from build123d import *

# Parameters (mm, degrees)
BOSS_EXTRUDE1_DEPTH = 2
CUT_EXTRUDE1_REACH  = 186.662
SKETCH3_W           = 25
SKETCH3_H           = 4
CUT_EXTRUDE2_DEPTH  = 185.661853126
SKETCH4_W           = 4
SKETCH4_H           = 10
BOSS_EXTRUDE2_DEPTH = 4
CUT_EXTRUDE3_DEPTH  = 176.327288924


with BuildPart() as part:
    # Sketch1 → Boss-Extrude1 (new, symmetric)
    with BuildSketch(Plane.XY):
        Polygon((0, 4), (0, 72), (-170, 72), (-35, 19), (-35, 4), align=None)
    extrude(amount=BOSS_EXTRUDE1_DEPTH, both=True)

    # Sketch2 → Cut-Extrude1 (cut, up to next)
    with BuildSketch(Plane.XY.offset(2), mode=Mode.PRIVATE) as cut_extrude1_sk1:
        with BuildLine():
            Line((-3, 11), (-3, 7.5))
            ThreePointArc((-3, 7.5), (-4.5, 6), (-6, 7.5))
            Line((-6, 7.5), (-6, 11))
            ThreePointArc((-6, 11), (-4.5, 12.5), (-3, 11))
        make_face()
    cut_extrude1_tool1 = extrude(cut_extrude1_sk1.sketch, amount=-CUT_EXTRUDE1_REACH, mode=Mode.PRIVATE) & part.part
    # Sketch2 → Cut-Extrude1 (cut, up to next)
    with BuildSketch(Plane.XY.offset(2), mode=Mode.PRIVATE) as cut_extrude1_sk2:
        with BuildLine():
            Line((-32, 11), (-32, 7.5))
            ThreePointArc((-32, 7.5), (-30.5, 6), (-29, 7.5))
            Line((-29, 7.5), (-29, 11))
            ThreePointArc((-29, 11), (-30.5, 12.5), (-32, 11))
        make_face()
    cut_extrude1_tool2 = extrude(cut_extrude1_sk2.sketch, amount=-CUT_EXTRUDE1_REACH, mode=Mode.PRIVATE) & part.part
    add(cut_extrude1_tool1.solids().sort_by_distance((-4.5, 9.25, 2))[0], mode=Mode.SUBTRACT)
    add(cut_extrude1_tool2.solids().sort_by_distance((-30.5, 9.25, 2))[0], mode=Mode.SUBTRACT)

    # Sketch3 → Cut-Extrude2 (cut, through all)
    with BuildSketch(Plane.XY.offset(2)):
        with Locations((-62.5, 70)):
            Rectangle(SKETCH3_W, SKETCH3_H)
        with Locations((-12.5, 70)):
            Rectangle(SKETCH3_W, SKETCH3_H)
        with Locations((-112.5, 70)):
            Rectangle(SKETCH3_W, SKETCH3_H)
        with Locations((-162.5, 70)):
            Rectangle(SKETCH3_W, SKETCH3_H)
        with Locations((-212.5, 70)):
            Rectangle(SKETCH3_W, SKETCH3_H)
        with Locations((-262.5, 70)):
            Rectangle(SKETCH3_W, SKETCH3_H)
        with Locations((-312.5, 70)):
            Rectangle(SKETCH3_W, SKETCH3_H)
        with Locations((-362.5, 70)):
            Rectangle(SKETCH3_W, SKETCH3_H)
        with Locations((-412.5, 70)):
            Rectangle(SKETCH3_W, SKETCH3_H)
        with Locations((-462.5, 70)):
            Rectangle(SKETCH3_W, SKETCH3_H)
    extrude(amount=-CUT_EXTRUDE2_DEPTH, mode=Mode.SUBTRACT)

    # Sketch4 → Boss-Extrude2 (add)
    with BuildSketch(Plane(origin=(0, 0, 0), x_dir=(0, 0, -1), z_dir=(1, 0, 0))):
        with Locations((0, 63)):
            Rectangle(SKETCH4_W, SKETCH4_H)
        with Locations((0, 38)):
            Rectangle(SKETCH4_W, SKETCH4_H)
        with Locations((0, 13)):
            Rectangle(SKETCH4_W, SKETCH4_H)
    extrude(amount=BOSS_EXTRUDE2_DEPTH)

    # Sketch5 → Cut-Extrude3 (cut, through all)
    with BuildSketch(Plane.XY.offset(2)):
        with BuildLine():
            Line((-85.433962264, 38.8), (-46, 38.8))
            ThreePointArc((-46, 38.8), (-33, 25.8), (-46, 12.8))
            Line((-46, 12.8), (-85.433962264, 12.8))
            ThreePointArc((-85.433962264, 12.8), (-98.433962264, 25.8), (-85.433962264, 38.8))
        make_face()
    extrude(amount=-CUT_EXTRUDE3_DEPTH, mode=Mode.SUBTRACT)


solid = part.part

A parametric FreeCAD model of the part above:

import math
import FreeCAD as App
import Part
import Sketcher

doc = App.newDocument("Part")
params = doc.addObject("Spreadsheet::Sheet", "Params")
for row, (alias, value) in enumerate([
    ("sketch1_width", "170 mm"),
    ("sketch1_width2", "35 mm"),
    ("sketch1_height", "68 mm"),
    ("sketch1_height2", "15 mm"),
    ("pad1_length", "4 mm"),
    ("sketch2_radius", "1.5 mm"),
    ("sketch2_height", "3.5 mm"),
    ("sketch3_radius", "1.5 mm"),
    ("sketch3_height", "3.5 mm"),
    ("sketch4_width", "25 mm"),
    ("sketch4_height", "4 mm"),
    ("sketch5_width", "10 mm"),
    ("sketch5_height", "4 mm"),
    ("pad2_length", "4 mm"),
    ("sketch6_radius", "13 mm"),
], start=1):
    params.set(f"A{row}", alias)
    params.set(f"B{row}", "=" + value)
    params.setAlias(f"B{row}", alias)

body = doc.addObject("PartDesign::Body", "Body")

# Sketch on XY plane
sketch1 = doc.addObject("Sketcher::SketchObject", "Sketch")
body.addObject(sketch1)
sketch1.AttachmentSupport = (doc.XY_Plane, [""])
sketch1.MapMode = "FlatFace"
sketch1.addGeometry(Part.LineSegment(App.Vector(0, 4, 0), App.Vector(0, 72, 0)), False)
sketch1.addGeometry(Part.LineSegment(App.Vector(0, 72, 0), App.Vector(-170, 72, 0)), False)
sketch1.addGeometry(Part.LineSegment(App.Vector(-170, 72, 0), App.Vector(-35, 19, 0)), False)
sketch1.addGeometry(Part.LineSegment(App.Vector(-35, 19, 0), App.Vector(-35, 4, 0)), False)
sketch1.addGeometry(Part.LineSegment(App.Vector(-35, 4, 0), App.Vector(0, 4, 0)), False)
sketch1.addConstraint(Sketcher.Constraint("Coincident", 0, 2, 1, 1))
sketch1.addConstraint(Sketcher.Constraint("Coincident", 1, 2, 2, 1))
sketch1.addConstraint(Sketcher.Constraint("Coincident", 2, 2, 3, 1))
sketch1.addConstraint(Sketcher.Constraint("Coincident", 3, 2, 4, 1))
sketch1.addConstraint(Sketcher.Constraint("Coincident", 4, 2, 0, 1))
sketch1.addConstraint(Sketcher.Constraint("Vertical", 0))
sketch1.addConstraint(Sketcher.Constraint("Horizontal", 1))
sketch1.addConstraint(Sketcher.Constraint("Vertical", 3))
sketch1.addConstraint(Sketcher.Constraint("Horizontal", 4))
sketch1.addConstraint(Sketcher.Constraint("PointOnObject", 0, 2, -2))
sketch1.addConstraint(Sketcher.Constraint("DistanceX", 1, 2, 1, 1, 170.0))
sketch1.addConstraint(Sketcher.Constraint("DistanceX", 4, 1, 4, 2, 35.0))
sketch1.addConstraint(Sketcher.Constraint("DistanceY", 0, 1, 0, 2, 68.0))
sketch1.addConstraint(Sketcher.Constraint("DistanceY", 3, 2, 3, 1, 15.0))
sketch1.addConstraint(Sketcher.Constraint("DistanceY", -1, 1, 0, 2, 72.0))
sketch1.setExpression("Constraints[10]", "Params.sketch1_width")
sketch1.setExpression("Constraints[11]", "Params.sketch1_width2")
sketch1.setExpression("Constraints[12]", "Params.sketch1_height")
sketch1.setExpression("Constraints[13]", "Params.sketch1_height2")
pad1 = doc.addObject("PartDesign::Pad", "Pad")
body.addObject(pad1)
pad1.Profile = sketch1
pad1.setExpression("Length", "Params.pad1_length")
pad1.Midplane = True

# Sketch on XY plane
sketch2 = doc.addObject("Sketcher::SketchObject", "Sketch001")
body.addObject(sketch2)
sketch2.AttachmentSupport = (doc.XY_Plane, [""])
sketch2.MapMode = "FlatFace"
sketch2.AttachmentOffset = App.Placement(App.Vector(0, 0, 2), App.Rotation())
sketch2.addGeometry(Part.LineSegment(App.Vector(-3, 7.5, 0), App.Vector(-3, 11, 0)), False)
sketch2.addGeometry(Part.ArcOfCircle(Part.Circle(App.Vector(-4.5, 11, 0), App.Vector(0, 0, 1), 1.5), math.radians(0), math.radians(180)), False)
sketch2.addGeometry(Part.LineSegment(App.Vector(-6, 11, 0), App.Vector(-6, 7.5, 0)), False)
sketch2.addGeometry(Part.ArcOfCircle(Part.Circle(App.Vector(-4.5, 7.5, 0), App.Vector(0, 0, 1), 1.5), math.radians(180), math.radians(360)), False)
sketch2.addConstraint(Sketcher.Constraint("Tangent", 0, 2, 1, 1))
sketch2.addConstraint(Sketcher.Constraint("Tangent", 1, 2, 2, 1))
sketch2.addConstraint(Sketcher.Constraint("Tangent", 2, 2, 3, 1))
sketch2.addConstraint(Sketcher.Constraint("Tangent", 3, 2, 0, 1))
sketch2.addConstraint(Sketcher.Constraint("Vertical", 0))
sketch2.addConstraint(Sketcher.Constraint("Vertical", 2))
sketch2.addConstraint(Sketcher.Constraint("Radius", 1, 1.5))
sketch2.addConstraint(Sketcher.Constraint("DistanceY", 0, 1, 0, 2, 3.5))
sketch2.addConstraint(Sketcher.Constraint("DistanceY", -1, 1, 1, 3, 11.0))
sketch2.addConstraint(Sketcher.Constraint("DistanceX", 0, 2, -1, 1, 3.0))
sketch2.setExpression("Constraints[6]", "Params.sketch2_radius")
sketch2.setExpression("Constraints[7]", "Params.sketch2_height")
pocket1 = doc.addObject("PartDesign::Pocket", "Pocket")
body.addObject(pocket1)
pocket1.Profile = sketch2
pocket1.Type = "UpToFirst"

# Sketch on XY plane
sketch3 = doc.addObject("Sketcher::SketchObject", "Sketch002")
body.addObject(sketch3)
sketch3.AttachmentSupport = (doc.XY_Plane, [""])
sketch3.MapMode = "FlatFace"
sketch3.AttachmentOffset = App.Placement(App.Vector(0, 0, 2), App.Rotation())
sketch3.addGeometry(Part.LineSegment(App.Vector(-32, 11, 0), App.Vector(-32, 7.5, 0)), False)
sketch3.addGeometry(Part.ArcOfCircle(Part.Circle(App.Vector(-30.5, 7.5, 0), App.Vector(0, 0, 1), 1.5), math.radians(180), math.radians(360)), False)
sketch3.addGeometry(Part.LineSegment(App.Vector(-29, 7.5, 0), App.Vector(-29, 11, 0)), False)
sketch3.addGeometry(Part.ArcOfCircle(Part.Circle(App.Vector(-30.5, 11, 0), App.Vector(0, 0, 1), 1.5), math.radians(0), math.radians(180)), False)
sketch3.addConstraint(Sketcher.Constraint("Tangent", 0, 2, 1, 1))
sketch3.addConstraint(Sketcher.Constraint("Tangent", 1, 2, 2, 1))
sketch3.addConstraint(Sketcher.Constraint("Tangent", 2, 2, 3, 1))
sketch3.addConstraint(Sketcher.Constraint("Tangent", 3, 2, 0, 1))
sketch3.addConstraint(Sketcher.Constraint("Vertical", 0))
sketch3.addConstraint(Sketcher.Constraint("Vertical", 2))
sketch3.addConstraint(Sketcher.Constraint("Radius", 1, 1.5))
sketch3.addConstraint(Sketcher.Constraint("DistanceY", 0, 2, 0, 1, 3.5))
sketch3.addConstraint(Sketcher.Constraint("DistanceY", -1, 1, 3, 3, 11.0))
sketch3.addConstraint(Sketcher.Constraint("DistanceX", 0, 2, -1, 1, 32.0))
sketch3.setExpression("Constraints[6]", "Params.sketch3_radius")
sketch3.setExpression("Constraints[7]", "Params.sketch3_height")
pocket2 = doc.addObject("PartDesign::Pocket", "Pocket001")
body.addObject(pocket2)
pocket2.Profile = sketch3
pocket2.Type = "UpToFirst"

# Sketch on XY plane
sketch4 = doc.addObject("Sketcher::SketchObject", "Sketch003")
body.addObject(sketch4)
sketch4.AttachmentSupport = (doc.XY_Plane, [""])
sketch4.MapMode = "FlatFace"
sketch4.AttachmentOffset = App.Placement(App.Vector(0, 0, 2), App.Rotation())
sketch4.addGeometry(Part.LineSegment(App.Vector(-75, 72, 0), App.Vector(-75, 68, 0)), False)
sketch4.addGeometry(Part.LineSegment(App.Vector(-75, 68, 0), App.Vector(-50, 68, 0)), False)
sketch4.addGeometry(Part.LineSegment(App.Vector(-50, 68, 0), App.Vector(-50, 72, 0)), False)
sketch4.addGeometry(Part.LineSegment(App.Vector(-50, 72, 0), App.Vector(-75, 72, 0)), False)
sketch4.addGeometry(Part.LineSegment(App.Vector(-25, 72, 0), App.Vector(-25, 68, 0)), False)
sketch4.addGeometry(Part.LineSegment(App.Vector(-25, 68, 0), App.Vector(0, 68, 0)), False)
sketch4.addGeometry(Part.LineSegment(App.Vector(0, 68, 0), App.Vector(0, 72, 0)), False)
sketch4.addGeometry(Part.LineSegment(App.Vector(0, 72, 0), App.Vector(-25, 72, 0)), False)
sketch4.addGeometry(Part.LineSegment(App.Vector(-125, 72, 0), App.Vector(-125, 68, 0)), False)
sketch4.addGeometry(Part.LineSegment(App.Vector(-125, 68, 0), App.Vector(-100, 68, 0)), False)
sketch4.addGeometry(Part.LineSegment(App.Vector(-100, 68, 0), App.Vector(-100, 72, 0)), False)
sketch4.addGeometry(Part.LineSegment(App.Vector(-100, 72, 0), App.Vector(-125, 72, 0)), False)
sketch4.addGeometry(Part.LineSegment(App.Vector(-175, 72, 0), App.Vector(-175, 68, 0)), False)
sketch4.addGeometry(Part.LineSegment(App.Vector(-175, 68, 0), App.Vector(-150, 68, 0)), False)
sketch4.addGeometry(Part.LineSegment(App.Vector(-150, 68, 0), App.Vector(-150, 72, 0)), False)
sketch4.addGeometry(Part.LineSegment(App.Vector(-150, 72, 0), App.Vector(-175, 72, 0)), False)
sketch4.addGeometry(Part.LineSegment(App.Vector(-225, 72, 0), App.Vector(-225, 68, 0)), False)
sketch4.addGeometry(Part.LineSegment(App.Vector(-225, 68, 0), App.Vector(-200, 68, 0)), False)
sketch4.addGeometry(Part.LineSegment(App.Vector(-200, 68, 0), App.Vector(-200, 72, 0)), False)
sketch4.addGeometry(Part.LineSegment(App.Vector(-200, 72, 0), App.Vector(-225, 72, 0)), False)
sketch4.addGeometry(Part.LineSegment(App.Vector(-275, 72, 0), App.Vector(-275, 68, 0)), False)
sketch4.addGeometry(Part.LineSegment(App.Vector(-275, 68, 0), App.Vector(-250, 68, 0)), False)
sketch4.addGeometry(Part.LineSegment(App.Vector(-250, 68, 0), App.Vector(-250, 72, 0)), False)
sketch4.addGeometry(Part.LineSegment(App.Vector(-250, 72, 0), App.Vector(-275, 72, 0)), False)
sketch4.addGeometry(Part.LineSegment(App.Vector(-325, 72, 0), App.Vector(-325, 68, 0)), False)
sketch4.addGeometry(Part.LineSegment(App.Vector(-325, 68, 0), App.Vector(-300, 68, 0)), False)
sketch4.addGeometry(Part.LineSegment(App.Vector(-300, 68, 0), App.Vector(-300, 72, 0)), False)
sketch4.addGeometry(Part.LineSegment(App.Vector(-300, 72, 0), App.Vector(-325, 72, 0)), False)
sketch4.addGeometry(Part.LineSegment(App.Vector(-375, 72, 0), App.Vector(-375, 68, 0)), False)
sketch4.addGeometry(Part.LineSegment(App.Vector(-375, 68, 0), App.Vector(-350, 68, 0)), False)
sketch4.addGeometry(Part.LineSegment(App.Vector(-350, 68, 0), App.Vector(-350, 72, 0)), False)
sketch4.addGeometry(Part.LineSegment(App.Vector(-350, 72, 0), App.Vector(-375, 72, 0)), False)
sketch4.addGeometry(Part.LineSegment(App.Vector(-425, 72, 0), App.Vector(-425, 68, 0)), False)
sketch4.addGeometry(Part.LineSegment(App.Vector(-425, 68, 0), App.Vector(-400, 68, 0)), False)
sketch4.addGeometry(Part.LineSegment(App.Vector(-400, 68, 0), App.Vector(-400, 72, 0)), False)
sketch4.addGeometry(Part.LineSegment(App.Vector(-400, 72, 0), App.Vector(-425, 72, 0)), False)
sketch4.addGeometry(Part.LineSegment(App.Vector(-475, 72, 0), App.Vector(-475, 68, 0)), False)
sketch4.addGeometry(Part.LineSegment(App.Vector(-475, 68, 0), App.Vector(-450, 68, 0)), False)
sketch4.addGeometry(Part.LineSegment(App.Vector(-450, 68, 0), App.Vector(-450, 72, 0)), False)
sketch4.addGeometry(Part.LineSegment(App.Vector(-450, 72, 0), App.Vector(-475, 72, 0)), False)
sketch4.addConstraint(Sketcher.Constraint("Coincident", 0, 2, 1, 1))
sketch4.addConstraint(Sketcher.Constraint("Coincident", 1, 2, 2, 1))
sketch4.addConstraint(Sketcher.Constraint("Coincident", 2, 2, 3, 1))
sketch4.addConstraint(Sketcher.Constraint("Coincident", 3, 2, 0, 1))
sketch4.addConstraint(Sketcher.Constraint("Coincident", 4, 2, 5, 1))
sketch4.addConstraint(Sketcher.Constraint("Coincident", 5, 2, 6, 1))
sketch4.addConstraint(Sketcher.Constraint("Coincident", 6, 2, 7, 1))
sketch4.addConstraint(Sketcher.Constraint("Coincident", 7, 2, 4, 1))
sketch4.addConstraint(Sketcher.Constraint("Coincident", 8, 2, 9, 1))
sketch4.addConstraint(Sketcher.Constraint("Coincident", 9, 2, 10, 1))
sketch4.addConstraint(Sketcher.Constraint("Coincident", 10, 2, 11, 1))
sketch4.addConstraint(Sketcher.Constraint("Coincident", 11, 2, 8, 1))
sketch4.addConstraint(Sketcher.Constraint("Coincident", 12, 2, 13, 1))
sketch4.addConstraint(Sketcher.Constraint("Coincident", 13, 2, 14, 1))
sketch4.addConstraint(Sketcher.Constraint("Coincident", 14, 2, 15, 1))
sketch4.addConstraint(Sketcher.Constraint("Coincident", 15, 2, 12, 1))
sketch4.addConstraint(Sketcher.Constraint("Coincident", 16, 2, 17, 1))
sketch4.addConstraint(Sketcher.Constraint("Coincident", 17, 2, 18, 1))
sketch4.addConstraint(Sketcher.Constraint("Coincident", 18, 2, 19, 1))
sketch4.addConstraint(Sketcher.Constraint("Coincident", 19, 2, 16, 1))
sketch4.addConstraint(Sketcher.Constraint("Coincident", 20, 2, 21, 1))
sketch4.addConstraint(Sketcher.Constraint("Coincident", 21, 2, 22, 1))
sketch4.addConstraint(Sketcher.Constraint("Coincident", 22, 2, 23, 1))
sketch4.addConstraint(Sketcher.Constraint("Coincident", 23, 2, 20, 1))
sketch4.addConstraint(Sketcher.Constraint("Coincident", 24, 2, 25, 1))
sketch4.addConstraint(Sketcher.Constraint("Coincident", 25, 2, 26, 1))
sketch4.addConstraint(Sketcher.Constraint("Coincident", 26, 2, 27, 1))
sketch4.addConstraint(Sketcher.Constraint("Coincident", 27, 2, 24, 1))
sketch4.addConstraint(Sketcher.Constraint("Coincident", 28, 2, 29, 1))
sketch4.addConstraint(Sketcher.Constraint("Coincident", 29, 2, 30, 1))
sketch4.addConstraint(Sketcher.Constraint("Coincident", 30, 2, 31, 1))
sketch4.addConstraint(Sketcher.Constraint("Coincident", 31, 2, 28, 1))
sketch4.addConstraint(Sketcher.Constraint("Coincident", 32, 2, 33, 1))
sketch4.addConstraint(Sketcher.Constraint("Coincident", 33, 2, 34, 1))
sketch4.addConstraint(Sketcher.Constraint("Coincident", 34, 2, 35, 1))
sketch4.addConstraint(Sketcher.Constraint("Coincident", 35, 2, 32, 1))
sketch4.addConstraint(Sketcher.Constraint("Coincident", 36, 2, 37, 1))
sketch4.addConstraint(Sketcher.Constraint("Coincident", 37, 2, 38, 1))
sketch4.addConstraint(Sketcher.Constraint("Coincident", 38, 2, 39, 1))
sketch4.addConstraint(Sketcher.Constraint("Coincident", 39, 2, 36, 1))
sketch4.addConstraint(Sketcher.Constraint("Vertical", 0))
sketch4.addConstraint(Sketcher.Constraint("Horizontal", 1))
sketch4.addConstraint(Sketcher.Constraint("Vertical", 2))
sketch4.addConstraint(Sketcher.Constraint("Horizontal", 3))
sketch4.addConstraint(Sketcher.Constraint("Vertical", 4))
sketch4.addConstraint(Sketcher.Constraint("Horizontal", 5))
sketch4.addConstraint(Sketcher.Constraint("Vertical", 6))
sketch4.addConstraint(Sketcher.Constraint("Horizontal", 7))
sketch4.addConstraint(Sketcher.Constraint("Vertical", 8))
sketch4.addConstraint(Sketcher.Constraint("Horizontal", 9))
sketch4.addConstraint(Sketcher.Constraint("Vertical", 10))
sketch4.addConstraint(Sketcher.Constraint("Horizontal", 11))
sketch4.addConstraint(Sketcher.Constraint("Vertical", 12))
sketch4.addConstraint(Sketcher.Constraint("Horizontal", 13))
sketch4.addConstraint(Sketcher.Constraint("Vertical", 14))
sketch4.addConstraint(Sketcher.Constraint("Horizontal", 15))
sketch4.addConstraint(Sketcher.Constraint("Vertical", 16))
sketch4.addConstraint(Sketcher.Constraint("Horizontal", 17))
sketch4.addConstraint(Sketcher.Constraint("Vertical", 18))
sketch4.addConstraint(Sketcher.Constraint("Horizontal", 19))
sketch4.addConstraint(Sketcher.Constraint("Vertical", 20))
sketch4.addConstraint(Sketcher.Constraint("Horizontal", 21))
sketch4.addConstraint(Sketcher.Constraint("Vertical", 22))
sketch4.addConstraint(Sketcher.Constraint("Horizontal", 23))
sketch4.addConstraint(Sketcher.Constraint("Vertical", 24))
sketch4.addConstraint(Sketcher.Constraint("Horizontal", 25))
sketch4.addConstraint(Sketcher.Constraint("Vertical", 26))
sketch4.addConstraint(Sketcher.Constraint("Horizontal", 27))
sketch4.addConstraint(Sketcher.Constraint("Vertical", 28))
sketch4.addConstraint(Sketcher.Constraint("Horizontal", 29))
sketch4.addConstraint(Sketcher.Constraint("Vertical", 30))
sketch4.addConstraint(Sketcher.Constraint("Horizontal", 31))
sketch4.addConstraint(Sketcher.Constraint("Vertical", 32))
sketch4.addConstraint(Sketcher.Constraint("Horizontal", 33))
sketch4.addConstraint(Sketcher.Constraint("Vertical", 34))
sketch4.addConstraint(Sketcher.Constraint("Horizontal", 35))
sketch4.addConstraint(Sketcher.Constraint("Vertical", 36))
sketch4.addConstraint(Sketcher.Constraint("Horizontal", 37))
sketch4.addConstraint(Sketcher.Constraint("Vertical", 38))
sketch4.addConstraint(Sketcher.Constraint("Horizontal", 39))
sketch4.addConstraint(Sketcher.Constraint("PointOnObject", 5, 2, -2))
sketch4.addConstraint(Sketcher.Constraint("Horizontal", 1, 2, 4, 2))
sketch4.addConstraint(Sketcher.Constraint("Horizontal", 3, 2, 6, 2))
sketch4.addConstraint(Sketcher.Constraint("Horizontal", 5, 2, 8, 2))
sketch4.addConstraint(Sketcher.Constraint("Horizontal", 7, 2, 10, 2))
sketch4.addConstraint(Sketcher.Constraint("Horizontal", 9, 2, 12, 2))
sketch4.addConstraint(Sketcher.Constraint("Horizontal", 11, 2, 14, 2))
sketch4.addConstraint(Sketcher.Constraint("Horizontal", 13, 2, 16, 2))
sketch4.addConstraint(Sketcher.Constraint("Horizontal", 15, 2, 18, 2))
sketch4.addConstraint(Sketcher.Constraint("Horizontal", 17, 2, 20, 2))
sketch4.addConstraint(Sketcher.Constraint("Horizontal", 19, 2, 22, 2))
sketch4.addConstraint(Sketcher.Constraint("Horizontal", 21, 2, 24, 2))
sketch4.addConstraint(Sketcher.Constraint("Horizontal", 23, 2, 26, 2))
sketch4.addConstraint(Sketcher.Constraint("Horizontal", 25, 2, 28, 2))
sketch4.addConstraint(Sketcher.Constraint("Horizontal", 27, 2, 30, 2))
sketch4.addConstraint(Sketcher.Constraint("Horizontal", 29, 2, 32, 2))
sketch4.addConstraint(Sketcher.Constraint("Horizontal", 31, 2, 34, 2))
sketch4.addConstraint(Sketcher.Constraint("Horizontal", 33, 2, 36, 2))
sketch4.addConstraint(Sketcher.Constraint("Horizontal", 35, 2, 38, 2))
sketch4.addConstraint(Sketcher.Constraint("Equal", 3, 5))
sketch4.addConstraint(Sketcher.Constraint("Equal", 7, 9))
sketch4.addConstraint(Sketcher.Constraint("Equal", 11, 13))
sketch4.addConstraint(Sketcher.Constraint("Equal", 15, 17))
sketch4.addConstraint(Sketcher.Constraint("Equal", 19, 21))
sketch4.addConstraint(Sketcher.Constraint("Equal", 23, 25))
sketch4.addConstraint(Sketcher.Constraint("Equal", 27, 29))
sketch4.addConstraint(Sketcher.Constraint("Equal", 31, 33))
sketch4.addConstraint(Sketcher.Constraint("Equal", 35, 37))
sketch4.addConstraint(Sketcher.Constraint("DistanceX", 1, 1, 1, 2, 25.0))
sketch4.addConstraint(Sketcher.Constraint("DistanceY", 0, 2, 0, 1, 4.0))
sketch4.addConstraint(Sketcher.Constraint("DistanceX", 0, 2, -1, 1, 75.0))
sketch4.addConstraint(Sketcher.Constraint("DistanceY", -1, 1, 0, 2, 68.0))
sketch4.addConstraint(Sketcher.Constraint("DistanceX", 8, 2, -1, 1, 125.0))
sketch4.addConstraint(Sketcher.Constraint("DistanceX", 12, 2, -1, 1, 175.0))
sketch4.addConstraint(Sketcher.Constraint("DistanceX", 16, 2, -1, 1, 225.0))
sketch4.addConstraint(Sketcher.Constraint("DistanceX", 20, 2, -1, 1, 275.0))
sketch4.addConstraint(Sketcher.Constraint("DistanceX", 24, 2, -1, 1, 325.0))
sketch4.addConstraint(Sketcher.Constraint("DistanceX", 28, 2, -1, 1, 375.0))
sketch4.addConstraint(Sketcher.Constraint("DistanceX", 32, 2, -1, 1, 425.0))
sketch4.addConstraint(Sketcher.Constraint("DistanceX", 36, 2, -1, 1, 475.0))
sketch4.setExpression("Constraints[108]", "Params.sketch4_width")
sketch4.setExpression("Constraints[109]", "Params.sketch4_height")
pocket3 = doc.addObject("PartDesign::Pocket", "Pocket002")
body.addObject(pocket3)
pocket3.Profile = sketch4
pocket3.Type = "ThroughAll"

# Sketch on YZ plane
sketch5 = doc.addObject("Sketcher::SketchObject", "Sketch004")
body.addObject(sketch5)
sketch5.AttachmentSupport = (doc.YZ_Plane, [""])
sketch5.MapMode = "FlatFace"
sketch5.addGeometry(Part.LineSegment(App.Vector(68, 2, 0), App.Vector(58, 2, 0)), False)
sketch5.addGeometry(Part.LineSegment(App.Vector(58, 2, 0), App.Vector(58, -2, 0)), False)
sketch5.addGeometry(Part.LineSegment(App.Vector(58, -2, 0), App.Vector(68, -2, 0)), False)
sketch5.addGeometry(Part.LineSegment(App.Vector(68, -2, 0), App.Vector(68, 2, 0)), False)
sketch5.addGeometry(Part.LineSegment(App.Vector(43, 2, 0), App.Vector(33, 2, 0)), False)
sketch5.addGeometry(Part.LineSegment(App.Vector(33, 2, 0), App.Vector(33, -2, 0)), False)
sketch5.addGeometry(Part.LineSegment(App.Vector(33, -2, 0), App.Vector(43, -2, 0)), False)
sketch5.addGeometry(Part.LineSegment(App.Vector(43, -2, 0), App.Vector(43, 2, 0)), False)
sketch5.addGeometry(Part.LineSegment(App.Vector(18, 2, 0), App.Vector(8, 2, 0)), False)
sketch5.addGeometry(Part.LineSegment(App.Vector(8, 2, 0), App.Vector(8, -2, 0)), False)
sketch5.addGeometry(Part.LineSegment(App.Vector(8, -2, 0), App.Vector(18, -2, 0)), False)
sketch5.addGeometry(Part.LineSegment(App.Vector(18, -2, 0), App.Vector(18, 2, 0)), False)
sketch5.addConstraint(Sketcher.Constraint("Coincident", 0, 2, 1, 1))
sketch5.addConstraint(Sketcher.Constraint("Coincident", 1, 2, 2, 1))
sketch5.addConstraint(Sketcher.Constraint("Coincident", 2, 2, 3, 1))
sketch5.addConstraint(Sketcher.Constraint("Coincident", 3, 2, 0, 1))
sketch5.addConstraint(Sketcher.Constraint("Coincident", 4, 2, 5, 1))
sketch5.addConstraint(Sketcher.Constraint("Coincident", 5, 2, 6, 1))
sketch5.addConstraint(Sketcher.Constraint("Coincident", 6, 2, 7, 1))
sketch5.addConstraint(Sketcher.Constraint("Coincident", 7, 2, 4, 1))
sketch5.addConstraint(Sketcher.Constraint("Coincident", 8, 2, 9, 1))
sketch5.addConstraint(Sketcher.Constraint("Coincident", 9, 2, 10, 1))
sketch5.addConstraint(Sketcher.Constraint("Coincident", 10, 2, 11, 1))
sketch5.addConstraint(Sketcher.Constraint("Coincident", 11, 2, 8, 1))
sketch5.addConstraint(Sketcher.Constraint("Horizontal", 0))
sketch5.addConstraint(Sketcher.Constraint("Vertical", 1))
sketch5.addConstraint(Sketcher.Constraint("Horizontal", 2))
sketch5.addConstraint(Sketcher.Constraint("Vertical", 3))
sketch5.addConstraint(Sketcher.Constraint("Horizontal", 4))
sketch5.addConstraint(Sketcher.Constraint("Vertical", 5))
sketch5.addConstraint(Sketcher.Constraint("Horizontal", 6))
sketch5.addConstraint(Sketcher.Constraint("Vertical", 7))
sketch5.addConstraint(Sketcher.Constraint("Horizontal", 8))
sketch5.addConstraint(Sketcher.Constraint("Vertical", 9))
sketch5.addConstraint(Sketcher.Constraint("Horizontal", 10))
sketch5.addConstraint(Sketcher.Constraint("Vertical", 11))
sketch5.addConstraint(Sketcher.Constraint("Horizontal", 3, 2, 4, 2))
sketch5.addConstraint(Sketcher.Constraint("Horizontal", 2, 2, 5, 2))
sketch5.addConstraint(Sketcher.Constraint("Horizontal", 7, 2, 8, 2))
sketch5.addConstraint(Sketcher.Constraint("Horizontal", 6, 2, 9, 2))
sketch5.addConstraint(Sketcher.Constraint("Equal", 2, 4))
sketch5.addConstraint(Sketcher.Constraint("Equal", 6, 8))
sketch5.addConstraint(Sketcher.Constraint("DistanceX", 0, 2, 0, 1, 10.0))
sketch5.addConstraint(Sketcher.Constraint("DistanceY", 1, 2, 1, 1, 4.0))
sketch5.addConstraint(Sketcher.Constraint("DistanceX", -1, 1, 0, 2, 58.0))
sketch5.addConstraint(Sketcher.Constraint("DistanceY", -1, 1, 0, 2, 2.0))
sketch5.addConstraint(Sketcher.Constraint("DistanceX", -1, 1, 4, 2, 33.0))
sketch5.addConstraint(Sketcher.Constraint("DistanceX", -1, 1, 8, 2, 8.0))
sketch5.setExpression("Constraints[30]", "Params.sketch5_width")
sketch5.setExpression("Constraints[31]", "Params.sketch5_height")
pad2 = doc.addObject("PartDesign::Pad", "Pad001")
body.addObject(pad2)
pad2.Profile = sketch5
pad2.setExpression("Length", "Params.pad2_length")

# Sketch on XY plane
sketch6 = doc.addObject("Sketcher::SketchObject", "Sketch005")
body.addObject(sketch6)
sketch6.AttachmentSupport = (doc.XY_Plane, [""])
sketch6.MapMode = "FlatFace"
sketch6.AttachmentOffset = App.Placement(App.Vector(0, 0, 2), App.Rotation())
sketch6.addGeometry(Part.LineSegment(App.Vector(-46, 39, 0), App.Vector(-85, 39, 0)), False)
sketch6.addGeometry(Part.ArcOfCircle(Part.Circle(App.Vector(-85, 26, 0), App.Vector(0, 0, 1), 13), math.radians(90), math.radians(270)), False)
sketch6.addGeometry(Part.LineSegment(App.Vector(-85, 13, 0), App.Vector(-46, 13, 0)), False)
sketch6.addGeometry(Part.ArcOfCircle(Part.Circle(App.Vector(-46, 26, 0), App.Vector(0, 0, 1), 13), math.radians(-90), math.radians(90)), False)
sketch6.addConstraint(Sketcher.Constraint("Tangent", 0, 2, 1, 1))
sketch6.addConstraint(Sketcher.Constraint("Tangent", 1, 2, 2, 1))
sketch6.addConstraint(Sketcher.Constraint("Tangent", 2, 2, 3, 1))
sketch6.addConstraint(Sketcher.Constraint("Tangent", 3, 2, 0, 1))
sketch6.addConstraint(Sketcher.Constraint("Horizontal", 0))
sketch6.addConstraint(Sketcher.Constraint("Horizontal", 2))
sketch6.addConstraint(Sketcher.Constraint("Radius", 1, 13.0))
sketch6.addConstraint(Sketcher.Constraint("DistanceX", 3, 3, -1, 1, 46.0))
sketch6.addConstraint(Sketcher.Constraint("DistanceY", -1, 1, 1, 3, 25.8))
sketch6.addConstraint(Sketcher.Constraint("DistanceX", 0, 2, 0, 1, 39.433962))
sketch6.setExpression("Constraints[6]", "Params.sketch6_radius")
pocket4 = doc.addObject("PartDesign::Pocket", "Pocket003")
body.addObject(pocket4)
pocket4.Profile = sketch6
pocket4.Type = "ThroughAll"

doc.recompute()
